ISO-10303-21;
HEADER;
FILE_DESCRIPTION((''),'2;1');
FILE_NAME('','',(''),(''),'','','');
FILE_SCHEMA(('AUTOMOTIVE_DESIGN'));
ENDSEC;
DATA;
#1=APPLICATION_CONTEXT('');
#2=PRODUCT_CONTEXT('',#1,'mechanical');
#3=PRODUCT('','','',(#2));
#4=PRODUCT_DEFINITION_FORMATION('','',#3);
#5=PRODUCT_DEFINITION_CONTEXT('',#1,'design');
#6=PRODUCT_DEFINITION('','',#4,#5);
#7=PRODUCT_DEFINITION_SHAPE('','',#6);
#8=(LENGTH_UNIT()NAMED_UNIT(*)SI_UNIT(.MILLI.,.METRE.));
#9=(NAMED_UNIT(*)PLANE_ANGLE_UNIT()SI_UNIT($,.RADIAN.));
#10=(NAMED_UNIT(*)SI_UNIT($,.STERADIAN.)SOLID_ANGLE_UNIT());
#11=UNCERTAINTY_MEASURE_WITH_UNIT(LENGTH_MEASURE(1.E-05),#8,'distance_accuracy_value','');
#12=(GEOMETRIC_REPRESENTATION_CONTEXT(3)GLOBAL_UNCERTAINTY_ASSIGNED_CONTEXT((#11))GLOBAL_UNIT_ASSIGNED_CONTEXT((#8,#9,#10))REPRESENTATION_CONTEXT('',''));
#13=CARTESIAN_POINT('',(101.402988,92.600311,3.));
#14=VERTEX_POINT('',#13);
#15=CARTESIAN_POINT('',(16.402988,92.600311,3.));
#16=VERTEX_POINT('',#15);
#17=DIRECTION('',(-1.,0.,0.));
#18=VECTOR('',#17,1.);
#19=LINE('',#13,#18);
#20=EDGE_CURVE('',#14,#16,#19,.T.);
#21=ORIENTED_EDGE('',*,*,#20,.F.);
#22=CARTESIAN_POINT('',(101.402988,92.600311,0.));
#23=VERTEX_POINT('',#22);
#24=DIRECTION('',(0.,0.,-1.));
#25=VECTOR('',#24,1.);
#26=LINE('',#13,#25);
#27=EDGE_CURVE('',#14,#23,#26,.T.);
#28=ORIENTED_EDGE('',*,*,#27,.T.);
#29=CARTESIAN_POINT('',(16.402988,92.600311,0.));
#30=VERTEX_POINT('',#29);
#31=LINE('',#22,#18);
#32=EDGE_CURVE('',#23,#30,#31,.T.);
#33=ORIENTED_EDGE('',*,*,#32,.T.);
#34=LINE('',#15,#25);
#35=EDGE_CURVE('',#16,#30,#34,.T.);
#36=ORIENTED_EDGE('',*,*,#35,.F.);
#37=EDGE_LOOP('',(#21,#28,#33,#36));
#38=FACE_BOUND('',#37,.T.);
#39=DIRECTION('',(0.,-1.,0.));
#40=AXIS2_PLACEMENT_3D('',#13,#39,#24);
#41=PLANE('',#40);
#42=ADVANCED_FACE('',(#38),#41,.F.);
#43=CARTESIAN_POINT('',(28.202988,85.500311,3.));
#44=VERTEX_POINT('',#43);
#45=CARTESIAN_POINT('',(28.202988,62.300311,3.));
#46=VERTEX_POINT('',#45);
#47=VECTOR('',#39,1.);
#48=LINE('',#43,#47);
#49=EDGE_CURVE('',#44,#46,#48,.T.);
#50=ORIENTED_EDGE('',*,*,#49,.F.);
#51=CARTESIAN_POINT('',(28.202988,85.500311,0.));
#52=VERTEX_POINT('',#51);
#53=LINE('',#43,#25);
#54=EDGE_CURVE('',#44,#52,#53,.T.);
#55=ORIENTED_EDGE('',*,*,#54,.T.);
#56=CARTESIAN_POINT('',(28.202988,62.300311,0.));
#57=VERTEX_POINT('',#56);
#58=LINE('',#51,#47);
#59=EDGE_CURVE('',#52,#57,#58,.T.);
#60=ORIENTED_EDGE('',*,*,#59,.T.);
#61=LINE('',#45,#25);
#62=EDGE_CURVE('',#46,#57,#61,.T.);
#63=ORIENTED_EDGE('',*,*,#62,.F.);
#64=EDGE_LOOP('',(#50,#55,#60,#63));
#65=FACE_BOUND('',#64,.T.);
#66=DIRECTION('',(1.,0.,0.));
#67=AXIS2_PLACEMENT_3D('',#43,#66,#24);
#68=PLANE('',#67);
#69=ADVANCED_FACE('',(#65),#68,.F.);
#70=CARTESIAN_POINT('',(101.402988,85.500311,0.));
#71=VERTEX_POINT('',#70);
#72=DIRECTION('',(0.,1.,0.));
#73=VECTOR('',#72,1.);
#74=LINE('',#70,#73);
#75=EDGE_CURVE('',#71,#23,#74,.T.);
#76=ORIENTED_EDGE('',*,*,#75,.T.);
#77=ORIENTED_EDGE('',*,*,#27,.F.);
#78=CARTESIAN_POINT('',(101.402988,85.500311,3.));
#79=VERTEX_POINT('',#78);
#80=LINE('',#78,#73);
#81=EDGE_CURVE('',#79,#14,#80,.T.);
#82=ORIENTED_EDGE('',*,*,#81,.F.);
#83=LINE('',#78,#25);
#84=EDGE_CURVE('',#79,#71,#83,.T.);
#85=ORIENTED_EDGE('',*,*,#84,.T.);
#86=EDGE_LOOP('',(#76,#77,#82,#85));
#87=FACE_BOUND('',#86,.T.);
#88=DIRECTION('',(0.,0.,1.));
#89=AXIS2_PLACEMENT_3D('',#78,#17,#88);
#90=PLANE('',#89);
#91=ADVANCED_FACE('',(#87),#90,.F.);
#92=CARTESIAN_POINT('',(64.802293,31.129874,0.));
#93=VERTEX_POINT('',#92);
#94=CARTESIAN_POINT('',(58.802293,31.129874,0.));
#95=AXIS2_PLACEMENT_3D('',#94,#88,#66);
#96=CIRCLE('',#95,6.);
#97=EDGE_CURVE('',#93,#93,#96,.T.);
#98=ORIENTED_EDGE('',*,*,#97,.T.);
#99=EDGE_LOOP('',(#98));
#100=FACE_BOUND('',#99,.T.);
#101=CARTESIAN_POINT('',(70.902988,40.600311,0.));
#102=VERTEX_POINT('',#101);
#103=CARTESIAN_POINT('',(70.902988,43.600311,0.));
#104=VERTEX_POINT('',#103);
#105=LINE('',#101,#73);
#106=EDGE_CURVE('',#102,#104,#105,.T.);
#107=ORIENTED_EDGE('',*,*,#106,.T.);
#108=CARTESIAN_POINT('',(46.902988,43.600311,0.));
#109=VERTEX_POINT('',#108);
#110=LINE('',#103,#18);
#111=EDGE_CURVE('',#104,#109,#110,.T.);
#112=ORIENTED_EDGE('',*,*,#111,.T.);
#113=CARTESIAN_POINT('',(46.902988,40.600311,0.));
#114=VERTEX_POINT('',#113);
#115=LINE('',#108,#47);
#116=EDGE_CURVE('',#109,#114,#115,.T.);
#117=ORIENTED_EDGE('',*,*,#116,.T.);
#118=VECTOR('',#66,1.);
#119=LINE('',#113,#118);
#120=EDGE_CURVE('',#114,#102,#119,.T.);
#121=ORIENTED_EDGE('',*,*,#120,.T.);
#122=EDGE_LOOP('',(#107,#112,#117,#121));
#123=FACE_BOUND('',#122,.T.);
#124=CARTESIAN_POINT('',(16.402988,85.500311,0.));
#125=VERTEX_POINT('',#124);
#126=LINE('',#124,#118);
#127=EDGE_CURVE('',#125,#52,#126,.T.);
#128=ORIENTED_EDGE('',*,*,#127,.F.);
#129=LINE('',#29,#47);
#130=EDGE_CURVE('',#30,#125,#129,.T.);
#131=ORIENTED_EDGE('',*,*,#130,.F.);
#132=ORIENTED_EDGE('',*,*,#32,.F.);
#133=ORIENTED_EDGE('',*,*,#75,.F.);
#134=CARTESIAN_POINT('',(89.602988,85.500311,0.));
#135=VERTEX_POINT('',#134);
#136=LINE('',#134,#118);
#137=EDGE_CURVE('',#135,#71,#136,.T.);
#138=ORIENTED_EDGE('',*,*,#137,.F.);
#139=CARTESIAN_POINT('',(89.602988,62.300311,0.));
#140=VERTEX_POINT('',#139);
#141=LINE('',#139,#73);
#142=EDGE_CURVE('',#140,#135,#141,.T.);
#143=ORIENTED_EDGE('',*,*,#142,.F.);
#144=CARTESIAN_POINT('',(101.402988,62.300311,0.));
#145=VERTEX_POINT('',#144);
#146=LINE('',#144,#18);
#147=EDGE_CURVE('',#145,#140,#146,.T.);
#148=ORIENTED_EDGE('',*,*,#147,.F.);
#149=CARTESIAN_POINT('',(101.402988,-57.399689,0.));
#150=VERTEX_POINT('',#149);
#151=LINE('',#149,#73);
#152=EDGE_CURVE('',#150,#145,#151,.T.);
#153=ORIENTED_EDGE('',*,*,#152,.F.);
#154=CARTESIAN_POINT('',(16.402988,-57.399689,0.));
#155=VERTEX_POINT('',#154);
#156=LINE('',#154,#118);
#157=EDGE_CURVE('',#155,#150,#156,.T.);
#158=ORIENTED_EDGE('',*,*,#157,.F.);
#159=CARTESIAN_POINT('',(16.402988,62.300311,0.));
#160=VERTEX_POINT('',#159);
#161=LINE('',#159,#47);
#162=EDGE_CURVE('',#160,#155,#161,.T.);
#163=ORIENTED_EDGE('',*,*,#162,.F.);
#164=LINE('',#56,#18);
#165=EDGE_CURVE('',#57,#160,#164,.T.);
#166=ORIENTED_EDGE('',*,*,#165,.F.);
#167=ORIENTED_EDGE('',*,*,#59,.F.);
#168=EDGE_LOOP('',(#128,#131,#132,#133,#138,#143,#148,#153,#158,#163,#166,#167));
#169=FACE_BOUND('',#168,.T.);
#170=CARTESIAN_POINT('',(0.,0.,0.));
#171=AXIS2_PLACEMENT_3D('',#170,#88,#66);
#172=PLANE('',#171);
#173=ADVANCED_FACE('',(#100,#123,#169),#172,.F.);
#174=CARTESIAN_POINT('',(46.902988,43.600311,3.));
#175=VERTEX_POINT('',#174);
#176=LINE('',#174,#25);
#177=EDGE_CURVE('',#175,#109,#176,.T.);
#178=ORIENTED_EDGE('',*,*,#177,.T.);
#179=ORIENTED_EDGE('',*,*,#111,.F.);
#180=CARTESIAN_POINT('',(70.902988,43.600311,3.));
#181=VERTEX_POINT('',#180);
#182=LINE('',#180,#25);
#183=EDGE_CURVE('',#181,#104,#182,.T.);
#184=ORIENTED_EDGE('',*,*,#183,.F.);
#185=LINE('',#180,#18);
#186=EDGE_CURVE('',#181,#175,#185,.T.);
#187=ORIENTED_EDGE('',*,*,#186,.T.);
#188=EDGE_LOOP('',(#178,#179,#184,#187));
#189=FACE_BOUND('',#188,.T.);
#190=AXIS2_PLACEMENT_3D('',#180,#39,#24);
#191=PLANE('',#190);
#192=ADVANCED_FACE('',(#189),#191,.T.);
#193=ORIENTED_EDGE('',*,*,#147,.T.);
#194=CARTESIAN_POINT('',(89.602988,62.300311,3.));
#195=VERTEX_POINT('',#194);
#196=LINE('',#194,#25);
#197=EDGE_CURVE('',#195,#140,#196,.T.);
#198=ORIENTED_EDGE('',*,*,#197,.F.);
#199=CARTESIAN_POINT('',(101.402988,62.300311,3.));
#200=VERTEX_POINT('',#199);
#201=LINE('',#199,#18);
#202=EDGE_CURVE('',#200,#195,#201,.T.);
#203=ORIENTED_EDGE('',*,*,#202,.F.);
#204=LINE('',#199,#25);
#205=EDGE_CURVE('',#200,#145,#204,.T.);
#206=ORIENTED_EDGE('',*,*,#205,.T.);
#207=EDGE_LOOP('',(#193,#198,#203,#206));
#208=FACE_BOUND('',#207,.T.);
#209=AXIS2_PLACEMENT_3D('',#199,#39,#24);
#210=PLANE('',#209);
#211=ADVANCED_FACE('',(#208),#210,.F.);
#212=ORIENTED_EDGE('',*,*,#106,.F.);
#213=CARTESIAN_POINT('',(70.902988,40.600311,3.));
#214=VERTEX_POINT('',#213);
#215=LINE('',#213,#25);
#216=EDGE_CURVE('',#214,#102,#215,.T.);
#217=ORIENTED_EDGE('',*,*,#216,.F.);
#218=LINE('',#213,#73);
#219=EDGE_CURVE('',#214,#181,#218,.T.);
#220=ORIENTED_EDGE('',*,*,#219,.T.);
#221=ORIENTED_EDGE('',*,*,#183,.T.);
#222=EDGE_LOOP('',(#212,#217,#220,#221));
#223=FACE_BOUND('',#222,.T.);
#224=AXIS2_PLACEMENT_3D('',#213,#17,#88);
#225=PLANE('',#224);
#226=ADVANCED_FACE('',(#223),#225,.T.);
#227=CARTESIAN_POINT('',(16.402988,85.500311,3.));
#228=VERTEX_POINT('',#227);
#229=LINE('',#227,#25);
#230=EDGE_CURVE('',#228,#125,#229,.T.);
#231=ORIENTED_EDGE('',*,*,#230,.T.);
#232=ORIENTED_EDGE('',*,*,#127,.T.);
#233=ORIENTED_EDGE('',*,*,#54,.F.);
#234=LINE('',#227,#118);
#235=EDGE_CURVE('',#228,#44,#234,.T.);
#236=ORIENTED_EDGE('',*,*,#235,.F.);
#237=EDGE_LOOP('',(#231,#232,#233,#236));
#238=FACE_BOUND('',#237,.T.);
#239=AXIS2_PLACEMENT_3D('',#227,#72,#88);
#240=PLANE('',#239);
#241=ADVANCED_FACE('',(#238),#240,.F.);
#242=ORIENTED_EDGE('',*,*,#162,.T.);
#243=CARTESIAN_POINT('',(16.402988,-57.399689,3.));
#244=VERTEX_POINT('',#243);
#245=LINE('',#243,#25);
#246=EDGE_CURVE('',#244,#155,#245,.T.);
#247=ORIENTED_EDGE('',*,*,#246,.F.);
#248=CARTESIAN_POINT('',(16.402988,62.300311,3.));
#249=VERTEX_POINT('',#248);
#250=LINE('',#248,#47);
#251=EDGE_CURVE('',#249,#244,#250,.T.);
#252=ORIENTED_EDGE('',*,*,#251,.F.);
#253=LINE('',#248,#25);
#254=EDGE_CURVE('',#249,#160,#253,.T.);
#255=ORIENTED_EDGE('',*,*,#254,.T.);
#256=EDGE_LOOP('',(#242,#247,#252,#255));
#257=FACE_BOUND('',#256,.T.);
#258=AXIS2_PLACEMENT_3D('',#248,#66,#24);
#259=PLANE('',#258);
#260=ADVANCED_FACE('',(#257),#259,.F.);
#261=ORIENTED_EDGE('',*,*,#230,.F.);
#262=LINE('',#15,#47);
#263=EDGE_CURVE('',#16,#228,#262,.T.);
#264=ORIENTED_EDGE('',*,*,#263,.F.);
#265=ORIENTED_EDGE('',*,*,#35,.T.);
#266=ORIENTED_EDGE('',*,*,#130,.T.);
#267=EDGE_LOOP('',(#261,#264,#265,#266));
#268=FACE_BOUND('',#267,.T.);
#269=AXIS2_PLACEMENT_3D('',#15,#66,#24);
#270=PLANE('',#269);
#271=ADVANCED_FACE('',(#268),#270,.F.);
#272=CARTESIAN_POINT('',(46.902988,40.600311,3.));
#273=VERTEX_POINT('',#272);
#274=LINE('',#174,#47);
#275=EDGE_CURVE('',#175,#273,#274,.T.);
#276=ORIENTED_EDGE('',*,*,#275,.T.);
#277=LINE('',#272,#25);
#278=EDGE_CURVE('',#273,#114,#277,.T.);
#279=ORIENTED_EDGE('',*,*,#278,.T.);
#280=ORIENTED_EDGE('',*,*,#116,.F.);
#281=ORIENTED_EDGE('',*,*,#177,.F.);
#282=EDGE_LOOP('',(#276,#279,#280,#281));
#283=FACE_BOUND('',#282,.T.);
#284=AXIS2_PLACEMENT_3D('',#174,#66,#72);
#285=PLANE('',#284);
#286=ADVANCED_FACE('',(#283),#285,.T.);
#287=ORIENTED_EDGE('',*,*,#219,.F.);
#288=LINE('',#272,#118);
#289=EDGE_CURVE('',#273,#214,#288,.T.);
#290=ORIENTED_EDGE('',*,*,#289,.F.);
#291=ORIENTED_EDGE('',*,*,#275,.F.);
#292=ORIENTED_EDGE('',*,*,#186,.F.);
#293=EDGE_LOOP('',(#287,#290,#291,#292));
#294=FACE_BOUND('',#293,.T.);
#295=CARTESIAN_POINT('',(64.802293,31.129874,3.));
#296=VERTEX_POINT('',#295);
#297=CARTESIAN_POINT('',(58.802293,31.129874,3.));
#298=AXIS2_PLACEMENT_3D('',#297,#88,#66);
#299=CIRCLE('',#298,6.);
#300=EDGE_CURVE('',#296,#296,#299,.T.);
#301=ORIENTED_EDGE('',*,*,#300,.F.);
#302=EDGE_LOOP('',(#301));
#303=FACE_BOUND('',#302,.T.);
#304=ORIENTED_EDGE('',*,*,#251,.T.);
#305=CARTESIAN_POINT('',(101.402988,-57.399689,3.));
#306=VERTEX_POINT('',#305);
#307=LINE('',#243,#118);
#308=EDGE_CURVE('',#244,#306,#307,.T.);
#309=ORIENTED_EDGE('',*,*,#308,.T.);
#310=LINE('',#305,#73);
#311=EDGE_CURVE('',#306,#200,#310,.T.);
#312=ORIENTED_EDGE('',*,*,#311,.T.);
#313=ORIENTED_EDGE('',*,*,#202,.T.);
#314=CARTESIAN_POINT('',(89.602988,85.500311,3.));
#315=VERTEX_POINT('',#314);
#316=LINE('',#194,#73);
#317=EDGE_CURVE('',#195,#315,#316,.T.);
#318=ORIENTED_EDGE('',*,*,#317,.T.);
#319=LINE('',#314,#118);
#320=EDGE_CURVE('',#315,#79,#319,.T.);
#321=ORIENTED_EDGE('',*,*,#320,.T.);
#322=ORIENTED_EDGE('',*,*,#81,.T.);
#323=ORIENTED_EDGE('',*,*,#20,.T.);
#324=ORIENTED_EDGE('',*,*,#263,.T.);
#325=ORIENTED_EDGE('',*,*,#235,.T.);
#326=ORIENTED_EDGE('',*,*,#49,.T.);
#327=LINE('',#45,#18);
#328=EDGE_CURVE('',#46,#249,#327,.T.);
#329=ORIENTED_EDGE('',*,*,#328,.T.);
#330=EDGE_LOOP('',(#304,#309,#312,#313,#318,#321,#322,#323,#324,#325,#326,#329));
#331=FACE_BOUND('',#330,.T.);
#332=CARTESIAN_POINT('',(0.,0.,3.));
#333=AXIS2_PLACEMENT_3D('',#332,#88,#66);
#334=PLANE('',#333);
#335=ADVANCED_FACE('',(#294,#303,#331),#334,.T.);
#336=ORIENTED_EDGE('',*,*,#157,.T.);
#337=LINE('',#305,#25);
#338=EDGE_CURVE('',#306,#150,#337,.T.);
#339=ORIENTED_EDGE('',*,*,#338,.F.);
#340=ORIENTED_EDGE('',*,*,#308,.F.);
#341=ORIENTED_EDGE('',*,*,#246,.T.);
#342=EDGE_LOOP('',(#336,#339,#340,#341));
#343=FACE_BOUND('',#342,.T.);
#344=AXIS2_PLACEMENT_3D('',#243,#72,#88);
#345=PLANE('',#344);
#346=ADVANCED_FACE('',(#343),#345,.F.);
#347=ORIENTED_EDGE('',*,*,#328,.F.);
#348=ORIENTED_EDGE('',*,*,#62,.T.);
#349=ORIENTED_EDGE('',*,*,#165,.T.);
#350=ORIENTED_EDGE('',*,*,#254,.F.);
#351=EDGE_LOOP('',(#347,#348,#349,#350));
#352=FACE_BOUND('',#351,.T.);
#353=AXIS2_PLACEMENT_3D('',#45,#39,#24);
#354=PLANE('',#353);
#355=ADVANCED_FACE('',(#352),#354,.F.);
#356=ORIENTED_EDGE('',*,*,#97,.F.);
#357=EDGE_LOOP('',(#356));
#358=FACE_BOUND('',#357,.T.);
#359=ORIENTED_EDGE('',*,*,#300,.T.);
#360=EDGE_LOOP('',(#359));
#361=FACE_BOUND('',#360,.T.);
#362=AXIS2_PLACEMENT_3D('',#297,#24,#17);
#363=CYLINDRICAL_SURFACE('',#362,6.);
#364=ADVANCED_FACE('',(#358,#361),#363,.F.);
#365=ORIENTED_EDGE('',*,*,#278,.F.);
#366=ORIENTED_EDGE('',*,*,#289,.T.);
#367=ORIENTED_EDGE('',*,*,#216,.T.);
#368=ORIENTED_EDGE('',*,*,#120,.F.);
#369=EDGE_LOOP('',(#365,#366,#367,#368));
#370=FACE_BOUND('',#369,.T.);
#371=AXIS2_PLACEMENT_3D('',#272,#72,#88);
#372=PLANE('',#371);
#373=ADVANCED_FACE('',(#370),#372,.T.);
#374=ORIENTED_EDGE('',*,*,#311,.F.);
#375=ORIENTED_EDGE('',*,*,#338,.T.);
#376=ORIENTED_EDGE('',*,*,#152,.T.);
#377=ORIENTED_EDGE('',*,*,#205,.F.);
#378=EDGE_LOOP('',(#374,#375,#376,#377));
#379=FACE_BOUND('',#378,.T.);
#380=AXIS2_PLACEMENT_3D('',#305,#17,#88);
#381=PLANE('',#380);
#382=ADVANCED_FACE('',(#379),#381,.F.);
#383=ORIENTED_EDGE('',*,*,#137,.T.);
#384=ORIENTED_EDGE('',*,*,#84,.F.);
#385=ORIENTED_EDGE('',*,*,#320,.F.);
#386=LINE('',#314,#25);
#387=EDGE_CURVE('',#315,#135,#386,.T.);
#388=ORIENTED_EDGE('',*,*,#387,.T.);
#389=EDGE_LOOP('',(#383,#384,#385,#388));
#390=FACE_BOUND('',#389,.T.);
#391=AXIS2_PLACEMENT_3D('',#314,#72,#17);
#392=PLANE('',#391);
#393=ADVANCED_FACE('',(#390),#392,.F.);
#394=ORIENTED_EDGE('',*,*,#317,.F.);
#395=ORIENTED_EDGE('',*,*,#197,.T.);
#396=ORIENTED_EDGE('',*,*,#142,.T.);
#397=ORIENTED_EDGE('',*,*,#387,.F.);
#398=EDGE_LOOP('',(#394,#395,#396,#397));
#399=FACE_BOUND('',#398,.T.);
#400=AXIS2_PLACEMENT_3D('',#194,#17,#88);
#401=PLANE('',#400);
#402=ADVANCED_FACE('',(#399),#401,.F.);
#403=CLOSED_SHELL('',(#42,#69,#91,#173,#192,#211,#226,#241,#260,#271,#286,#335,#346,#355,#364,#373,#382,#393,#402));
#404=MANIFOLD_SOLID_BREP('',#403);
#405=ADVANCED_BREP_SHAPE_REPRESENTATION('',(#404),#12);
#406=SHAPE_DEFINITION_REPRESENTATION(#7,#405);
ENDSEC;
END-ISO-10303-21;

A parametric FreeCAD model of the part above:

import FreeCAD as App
import Part
import Sketcher

V = App.Vector
Q = App.Units.Quantity


def add_polygon(sketch, points):
    """Adds a closed chain of lines whose ends are joined by coincident constraints."""
    first, n = sketch.GeometryCount, len(points)
    for a, b in zip(points, points[1:] + points[:1]):
        sketch.addGeometry(Part.LineSegment(App.Vector(*a, 0), App.Vector(*b, 0)), False)
    for i in range(n):
        sketch.addConstraint(Sketcher.Constraint("Coincident", first + i, 2, first + (i + 1) % n, 1))

doc = App.newDocument("Part")
body = doc.addObject("PartDesign::Body", "Body")

sketch1 = body.newObject("Sketcher::SketchObject", "Sketch")
sketch1.AttachmentSupport = (doc.getObject("XY_Plane"), [""])
sketch1.MapMode = "FlatFace"
add_polygon(sketch1, [(16.4, 92.6), (16.4, 85.5), (28.2, 85.5), (28.2, 62.3), (16.4, 62.3), (16.4, -57.4), (101.4, -57.4), (101.4, 62.3), (89.6, 62.3), (89.6, 85.5), (101.4, 85.5), (101.4, 92.6)])
sketch1.addGeometry(Part.Circle(V(58.8, 31.1, 0), V(0, 0, 1), 6), False)
add_polygon(sketch1, [(70.9, 40.6), (46.9, 40.6), (46.9, 43.6), (70.9, 43.6)])
sketch1.addConstraint([
    Sketcher.Constraint("Vertical", 0),
    Sketcher.Constraint("Horizontal", 1),
    Sketcher.Constraint("Vertical", 2),
    Sketcher.Constraint("Horizontal", 3),
    Sketcher.Constraint("Vertical", 4),
    Sketcher.Constraint("Horizontal", 5),
    Sketcher.Constraint("Vertical", 6),
    Sketcher.Constraint("Horizontal", 7),
    Sketcher.Constraint("Vertical", 8),
    Sketcher.Constraint("Horizontal", 9),
    Sketcher.Constraint("Vertical", 10),
    Sketcher.Constraint("Horizontal", 11),
    Sketcher.Constraint("Horizontal", 13),
    Sketcher.Constraint("Vertical", 14),
    Sketcher.Constraint("Horizontal", 15),
    Sketcher.Constraint("Vertical", 16),
    Sketcher.Constraint("Horizontal", 3, 2, 6, 2),
    Sketcher.Constraint("Horizontal", 1, 2, 8, 2),
    Sketcher.Constraint("Vertical", 0, 2, 3, 2),
    Sketcher.Constraint("Vertical", 6, 2, 9, 2),
    Sketcher.Constraint("Equal", 3, 7),
    Sketcher.Constraint("Diameter", 12, Q("12 mm")),
    Sketcher.Constraint("DistanceX", 5, 1, 5, 2, Q("85 mm")),
    Sketcher.Constraint("DistanceX", 13, 2, 13, 1, Q("24 mm")),
    Sketcher.Constraint("DistanceY", 14, 1, 14, 2, Q("3 mm")),
    Sketcher.Constraint("DistanceX", 1, 1, 1, 2, Q("11.8 mm")),
    Sketcher.Constraint("DistanceY", 0, 2, 0, 1, Q("7.1 mm")),
    Sketcher.Constraint("DistanceY", 2, 2, 2, 1, Q("23.2 mm")),
    Sketcher.Constraint("DistanceY", 4, 2, 4, 1, Q("119.7 mm")),
    Sketcher.Constraint("DistanceX", 2, 2, 13, 2, Q("18.7 mm")),
    Sketcher.Constraint("DistanceY", 13, 2, 2, 2, Q("21.7 mm")),
    Sketcher.Constraint("DistanceX", -1, 1, 0, 2, Q("16.402988 mm")),
    Sketcher.Constraint("DistanceY", -1, 1, 0, 2, Q("85.500311 mm")),
    Sketcher.Constraint("DistanceX", -1, 1, 12, 3, Q("58.802293 mm")),
    Sketcher.Constraint("DistanceY", -1, 1, 12, 3, Q("31.129874 mm")),
])
pad1 = body.newObject("PartDesign::Pad", "Pad")
pad1.Profile = sketch1
pad1.Length = 3

doc.recompute()
